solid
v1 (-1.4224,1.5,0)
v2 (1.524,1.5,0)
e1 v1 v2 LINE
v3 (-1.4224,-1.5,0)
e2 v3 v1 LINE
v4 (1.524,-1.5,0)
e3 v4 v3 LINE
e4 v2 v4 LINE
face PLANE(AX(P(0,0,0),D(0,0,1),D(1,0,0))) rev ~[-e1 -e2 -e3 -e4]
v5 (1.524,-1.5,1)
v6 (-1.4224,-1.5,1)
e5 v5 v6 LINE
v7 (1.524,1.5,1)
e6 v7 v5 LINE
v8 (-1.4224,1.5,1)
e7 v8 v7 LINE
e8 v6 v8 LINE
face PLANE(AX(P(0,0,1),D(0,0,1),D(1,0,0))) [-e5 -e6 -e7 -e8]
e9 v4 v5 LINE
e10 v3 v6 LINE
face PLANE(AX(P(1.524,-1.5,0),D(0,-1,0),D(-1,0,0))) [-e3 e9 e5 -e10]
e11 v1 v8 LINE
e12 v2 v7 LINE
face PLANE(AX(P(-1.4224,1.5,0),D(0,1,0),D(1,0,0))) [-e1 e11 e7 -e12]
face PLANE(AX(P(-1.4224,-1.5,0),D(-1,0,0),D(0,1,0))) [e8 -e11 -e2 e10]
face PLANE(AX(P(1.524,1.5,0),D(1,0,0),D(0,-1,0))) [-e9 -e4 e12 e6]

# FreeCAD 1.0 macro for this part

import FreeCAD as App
import Part
import Sketcher

doc = App.newDocument("Part")
body = doc.addObject("PartDesign::Body", "Body")

sketch1 = body.newObject("Sketcher::SketchObject", "Sketch")
sketch1.AttachmentSupport = (doc.getObject("XY_Plane"), [""])
sketch1.MapMode = "FlatFace"
sketch1.addGeometry([
    Part.LineSegment(App.Vector(1.524, 1.5, 0), App.Vector(-1.4224, 1.5, 0)),
    Part.LineSegment(App.Vector(-1.4224, 1.5, 0), App.Vector(-1.4224, -1.5, 0)),
    Part.LineSegment(App.Vector(-1.4224, -1.5, 0), App.Vector(1.524, -1.5, 0)),
    Part.LineSegment(App.Vector(1.524, -1.5, 0), App.Vector(1.524, 1.5, 0)),
], False)
sketch1.addConstraint([
    Sketcher.Constraint("Coincident", 0, 2, 1, 1),
    Sketcher.Constraint("Coincident", 1, 2, 2, 1),
    Sketcher.Constraint("Coincident", 2, 2, 3, 1),
    Sketcher.Constraint("Coincident", 3, 2, 0, 1),
    Sketcher.Constraint("Horizontal", 0),
    Sketcher.Constraint("Vertical", 1),
    Sketcher.Constraint("Horizontal", 2),
    Sketcher.Constraint("Vertical", 3),
    Sketcher.Constraint("DistanceY", 1, 2, 1, 1, 3.0),
    Sketcher.Constraint("DistanceY", -1, 1, 0, 2, 1.5),
    Sketcher.Constraint("DistanceX", 0, 2, 0, 1, 2.9464),
    Sketcher.Constraint("DistanceX", -1, 1, 2, 2, 1.524),
])
pad1 = body.newObject("PartDesign::Pad", "Pad")
pad1.Profile = sketch1
pad1.Length = 1

doc.recompute()
